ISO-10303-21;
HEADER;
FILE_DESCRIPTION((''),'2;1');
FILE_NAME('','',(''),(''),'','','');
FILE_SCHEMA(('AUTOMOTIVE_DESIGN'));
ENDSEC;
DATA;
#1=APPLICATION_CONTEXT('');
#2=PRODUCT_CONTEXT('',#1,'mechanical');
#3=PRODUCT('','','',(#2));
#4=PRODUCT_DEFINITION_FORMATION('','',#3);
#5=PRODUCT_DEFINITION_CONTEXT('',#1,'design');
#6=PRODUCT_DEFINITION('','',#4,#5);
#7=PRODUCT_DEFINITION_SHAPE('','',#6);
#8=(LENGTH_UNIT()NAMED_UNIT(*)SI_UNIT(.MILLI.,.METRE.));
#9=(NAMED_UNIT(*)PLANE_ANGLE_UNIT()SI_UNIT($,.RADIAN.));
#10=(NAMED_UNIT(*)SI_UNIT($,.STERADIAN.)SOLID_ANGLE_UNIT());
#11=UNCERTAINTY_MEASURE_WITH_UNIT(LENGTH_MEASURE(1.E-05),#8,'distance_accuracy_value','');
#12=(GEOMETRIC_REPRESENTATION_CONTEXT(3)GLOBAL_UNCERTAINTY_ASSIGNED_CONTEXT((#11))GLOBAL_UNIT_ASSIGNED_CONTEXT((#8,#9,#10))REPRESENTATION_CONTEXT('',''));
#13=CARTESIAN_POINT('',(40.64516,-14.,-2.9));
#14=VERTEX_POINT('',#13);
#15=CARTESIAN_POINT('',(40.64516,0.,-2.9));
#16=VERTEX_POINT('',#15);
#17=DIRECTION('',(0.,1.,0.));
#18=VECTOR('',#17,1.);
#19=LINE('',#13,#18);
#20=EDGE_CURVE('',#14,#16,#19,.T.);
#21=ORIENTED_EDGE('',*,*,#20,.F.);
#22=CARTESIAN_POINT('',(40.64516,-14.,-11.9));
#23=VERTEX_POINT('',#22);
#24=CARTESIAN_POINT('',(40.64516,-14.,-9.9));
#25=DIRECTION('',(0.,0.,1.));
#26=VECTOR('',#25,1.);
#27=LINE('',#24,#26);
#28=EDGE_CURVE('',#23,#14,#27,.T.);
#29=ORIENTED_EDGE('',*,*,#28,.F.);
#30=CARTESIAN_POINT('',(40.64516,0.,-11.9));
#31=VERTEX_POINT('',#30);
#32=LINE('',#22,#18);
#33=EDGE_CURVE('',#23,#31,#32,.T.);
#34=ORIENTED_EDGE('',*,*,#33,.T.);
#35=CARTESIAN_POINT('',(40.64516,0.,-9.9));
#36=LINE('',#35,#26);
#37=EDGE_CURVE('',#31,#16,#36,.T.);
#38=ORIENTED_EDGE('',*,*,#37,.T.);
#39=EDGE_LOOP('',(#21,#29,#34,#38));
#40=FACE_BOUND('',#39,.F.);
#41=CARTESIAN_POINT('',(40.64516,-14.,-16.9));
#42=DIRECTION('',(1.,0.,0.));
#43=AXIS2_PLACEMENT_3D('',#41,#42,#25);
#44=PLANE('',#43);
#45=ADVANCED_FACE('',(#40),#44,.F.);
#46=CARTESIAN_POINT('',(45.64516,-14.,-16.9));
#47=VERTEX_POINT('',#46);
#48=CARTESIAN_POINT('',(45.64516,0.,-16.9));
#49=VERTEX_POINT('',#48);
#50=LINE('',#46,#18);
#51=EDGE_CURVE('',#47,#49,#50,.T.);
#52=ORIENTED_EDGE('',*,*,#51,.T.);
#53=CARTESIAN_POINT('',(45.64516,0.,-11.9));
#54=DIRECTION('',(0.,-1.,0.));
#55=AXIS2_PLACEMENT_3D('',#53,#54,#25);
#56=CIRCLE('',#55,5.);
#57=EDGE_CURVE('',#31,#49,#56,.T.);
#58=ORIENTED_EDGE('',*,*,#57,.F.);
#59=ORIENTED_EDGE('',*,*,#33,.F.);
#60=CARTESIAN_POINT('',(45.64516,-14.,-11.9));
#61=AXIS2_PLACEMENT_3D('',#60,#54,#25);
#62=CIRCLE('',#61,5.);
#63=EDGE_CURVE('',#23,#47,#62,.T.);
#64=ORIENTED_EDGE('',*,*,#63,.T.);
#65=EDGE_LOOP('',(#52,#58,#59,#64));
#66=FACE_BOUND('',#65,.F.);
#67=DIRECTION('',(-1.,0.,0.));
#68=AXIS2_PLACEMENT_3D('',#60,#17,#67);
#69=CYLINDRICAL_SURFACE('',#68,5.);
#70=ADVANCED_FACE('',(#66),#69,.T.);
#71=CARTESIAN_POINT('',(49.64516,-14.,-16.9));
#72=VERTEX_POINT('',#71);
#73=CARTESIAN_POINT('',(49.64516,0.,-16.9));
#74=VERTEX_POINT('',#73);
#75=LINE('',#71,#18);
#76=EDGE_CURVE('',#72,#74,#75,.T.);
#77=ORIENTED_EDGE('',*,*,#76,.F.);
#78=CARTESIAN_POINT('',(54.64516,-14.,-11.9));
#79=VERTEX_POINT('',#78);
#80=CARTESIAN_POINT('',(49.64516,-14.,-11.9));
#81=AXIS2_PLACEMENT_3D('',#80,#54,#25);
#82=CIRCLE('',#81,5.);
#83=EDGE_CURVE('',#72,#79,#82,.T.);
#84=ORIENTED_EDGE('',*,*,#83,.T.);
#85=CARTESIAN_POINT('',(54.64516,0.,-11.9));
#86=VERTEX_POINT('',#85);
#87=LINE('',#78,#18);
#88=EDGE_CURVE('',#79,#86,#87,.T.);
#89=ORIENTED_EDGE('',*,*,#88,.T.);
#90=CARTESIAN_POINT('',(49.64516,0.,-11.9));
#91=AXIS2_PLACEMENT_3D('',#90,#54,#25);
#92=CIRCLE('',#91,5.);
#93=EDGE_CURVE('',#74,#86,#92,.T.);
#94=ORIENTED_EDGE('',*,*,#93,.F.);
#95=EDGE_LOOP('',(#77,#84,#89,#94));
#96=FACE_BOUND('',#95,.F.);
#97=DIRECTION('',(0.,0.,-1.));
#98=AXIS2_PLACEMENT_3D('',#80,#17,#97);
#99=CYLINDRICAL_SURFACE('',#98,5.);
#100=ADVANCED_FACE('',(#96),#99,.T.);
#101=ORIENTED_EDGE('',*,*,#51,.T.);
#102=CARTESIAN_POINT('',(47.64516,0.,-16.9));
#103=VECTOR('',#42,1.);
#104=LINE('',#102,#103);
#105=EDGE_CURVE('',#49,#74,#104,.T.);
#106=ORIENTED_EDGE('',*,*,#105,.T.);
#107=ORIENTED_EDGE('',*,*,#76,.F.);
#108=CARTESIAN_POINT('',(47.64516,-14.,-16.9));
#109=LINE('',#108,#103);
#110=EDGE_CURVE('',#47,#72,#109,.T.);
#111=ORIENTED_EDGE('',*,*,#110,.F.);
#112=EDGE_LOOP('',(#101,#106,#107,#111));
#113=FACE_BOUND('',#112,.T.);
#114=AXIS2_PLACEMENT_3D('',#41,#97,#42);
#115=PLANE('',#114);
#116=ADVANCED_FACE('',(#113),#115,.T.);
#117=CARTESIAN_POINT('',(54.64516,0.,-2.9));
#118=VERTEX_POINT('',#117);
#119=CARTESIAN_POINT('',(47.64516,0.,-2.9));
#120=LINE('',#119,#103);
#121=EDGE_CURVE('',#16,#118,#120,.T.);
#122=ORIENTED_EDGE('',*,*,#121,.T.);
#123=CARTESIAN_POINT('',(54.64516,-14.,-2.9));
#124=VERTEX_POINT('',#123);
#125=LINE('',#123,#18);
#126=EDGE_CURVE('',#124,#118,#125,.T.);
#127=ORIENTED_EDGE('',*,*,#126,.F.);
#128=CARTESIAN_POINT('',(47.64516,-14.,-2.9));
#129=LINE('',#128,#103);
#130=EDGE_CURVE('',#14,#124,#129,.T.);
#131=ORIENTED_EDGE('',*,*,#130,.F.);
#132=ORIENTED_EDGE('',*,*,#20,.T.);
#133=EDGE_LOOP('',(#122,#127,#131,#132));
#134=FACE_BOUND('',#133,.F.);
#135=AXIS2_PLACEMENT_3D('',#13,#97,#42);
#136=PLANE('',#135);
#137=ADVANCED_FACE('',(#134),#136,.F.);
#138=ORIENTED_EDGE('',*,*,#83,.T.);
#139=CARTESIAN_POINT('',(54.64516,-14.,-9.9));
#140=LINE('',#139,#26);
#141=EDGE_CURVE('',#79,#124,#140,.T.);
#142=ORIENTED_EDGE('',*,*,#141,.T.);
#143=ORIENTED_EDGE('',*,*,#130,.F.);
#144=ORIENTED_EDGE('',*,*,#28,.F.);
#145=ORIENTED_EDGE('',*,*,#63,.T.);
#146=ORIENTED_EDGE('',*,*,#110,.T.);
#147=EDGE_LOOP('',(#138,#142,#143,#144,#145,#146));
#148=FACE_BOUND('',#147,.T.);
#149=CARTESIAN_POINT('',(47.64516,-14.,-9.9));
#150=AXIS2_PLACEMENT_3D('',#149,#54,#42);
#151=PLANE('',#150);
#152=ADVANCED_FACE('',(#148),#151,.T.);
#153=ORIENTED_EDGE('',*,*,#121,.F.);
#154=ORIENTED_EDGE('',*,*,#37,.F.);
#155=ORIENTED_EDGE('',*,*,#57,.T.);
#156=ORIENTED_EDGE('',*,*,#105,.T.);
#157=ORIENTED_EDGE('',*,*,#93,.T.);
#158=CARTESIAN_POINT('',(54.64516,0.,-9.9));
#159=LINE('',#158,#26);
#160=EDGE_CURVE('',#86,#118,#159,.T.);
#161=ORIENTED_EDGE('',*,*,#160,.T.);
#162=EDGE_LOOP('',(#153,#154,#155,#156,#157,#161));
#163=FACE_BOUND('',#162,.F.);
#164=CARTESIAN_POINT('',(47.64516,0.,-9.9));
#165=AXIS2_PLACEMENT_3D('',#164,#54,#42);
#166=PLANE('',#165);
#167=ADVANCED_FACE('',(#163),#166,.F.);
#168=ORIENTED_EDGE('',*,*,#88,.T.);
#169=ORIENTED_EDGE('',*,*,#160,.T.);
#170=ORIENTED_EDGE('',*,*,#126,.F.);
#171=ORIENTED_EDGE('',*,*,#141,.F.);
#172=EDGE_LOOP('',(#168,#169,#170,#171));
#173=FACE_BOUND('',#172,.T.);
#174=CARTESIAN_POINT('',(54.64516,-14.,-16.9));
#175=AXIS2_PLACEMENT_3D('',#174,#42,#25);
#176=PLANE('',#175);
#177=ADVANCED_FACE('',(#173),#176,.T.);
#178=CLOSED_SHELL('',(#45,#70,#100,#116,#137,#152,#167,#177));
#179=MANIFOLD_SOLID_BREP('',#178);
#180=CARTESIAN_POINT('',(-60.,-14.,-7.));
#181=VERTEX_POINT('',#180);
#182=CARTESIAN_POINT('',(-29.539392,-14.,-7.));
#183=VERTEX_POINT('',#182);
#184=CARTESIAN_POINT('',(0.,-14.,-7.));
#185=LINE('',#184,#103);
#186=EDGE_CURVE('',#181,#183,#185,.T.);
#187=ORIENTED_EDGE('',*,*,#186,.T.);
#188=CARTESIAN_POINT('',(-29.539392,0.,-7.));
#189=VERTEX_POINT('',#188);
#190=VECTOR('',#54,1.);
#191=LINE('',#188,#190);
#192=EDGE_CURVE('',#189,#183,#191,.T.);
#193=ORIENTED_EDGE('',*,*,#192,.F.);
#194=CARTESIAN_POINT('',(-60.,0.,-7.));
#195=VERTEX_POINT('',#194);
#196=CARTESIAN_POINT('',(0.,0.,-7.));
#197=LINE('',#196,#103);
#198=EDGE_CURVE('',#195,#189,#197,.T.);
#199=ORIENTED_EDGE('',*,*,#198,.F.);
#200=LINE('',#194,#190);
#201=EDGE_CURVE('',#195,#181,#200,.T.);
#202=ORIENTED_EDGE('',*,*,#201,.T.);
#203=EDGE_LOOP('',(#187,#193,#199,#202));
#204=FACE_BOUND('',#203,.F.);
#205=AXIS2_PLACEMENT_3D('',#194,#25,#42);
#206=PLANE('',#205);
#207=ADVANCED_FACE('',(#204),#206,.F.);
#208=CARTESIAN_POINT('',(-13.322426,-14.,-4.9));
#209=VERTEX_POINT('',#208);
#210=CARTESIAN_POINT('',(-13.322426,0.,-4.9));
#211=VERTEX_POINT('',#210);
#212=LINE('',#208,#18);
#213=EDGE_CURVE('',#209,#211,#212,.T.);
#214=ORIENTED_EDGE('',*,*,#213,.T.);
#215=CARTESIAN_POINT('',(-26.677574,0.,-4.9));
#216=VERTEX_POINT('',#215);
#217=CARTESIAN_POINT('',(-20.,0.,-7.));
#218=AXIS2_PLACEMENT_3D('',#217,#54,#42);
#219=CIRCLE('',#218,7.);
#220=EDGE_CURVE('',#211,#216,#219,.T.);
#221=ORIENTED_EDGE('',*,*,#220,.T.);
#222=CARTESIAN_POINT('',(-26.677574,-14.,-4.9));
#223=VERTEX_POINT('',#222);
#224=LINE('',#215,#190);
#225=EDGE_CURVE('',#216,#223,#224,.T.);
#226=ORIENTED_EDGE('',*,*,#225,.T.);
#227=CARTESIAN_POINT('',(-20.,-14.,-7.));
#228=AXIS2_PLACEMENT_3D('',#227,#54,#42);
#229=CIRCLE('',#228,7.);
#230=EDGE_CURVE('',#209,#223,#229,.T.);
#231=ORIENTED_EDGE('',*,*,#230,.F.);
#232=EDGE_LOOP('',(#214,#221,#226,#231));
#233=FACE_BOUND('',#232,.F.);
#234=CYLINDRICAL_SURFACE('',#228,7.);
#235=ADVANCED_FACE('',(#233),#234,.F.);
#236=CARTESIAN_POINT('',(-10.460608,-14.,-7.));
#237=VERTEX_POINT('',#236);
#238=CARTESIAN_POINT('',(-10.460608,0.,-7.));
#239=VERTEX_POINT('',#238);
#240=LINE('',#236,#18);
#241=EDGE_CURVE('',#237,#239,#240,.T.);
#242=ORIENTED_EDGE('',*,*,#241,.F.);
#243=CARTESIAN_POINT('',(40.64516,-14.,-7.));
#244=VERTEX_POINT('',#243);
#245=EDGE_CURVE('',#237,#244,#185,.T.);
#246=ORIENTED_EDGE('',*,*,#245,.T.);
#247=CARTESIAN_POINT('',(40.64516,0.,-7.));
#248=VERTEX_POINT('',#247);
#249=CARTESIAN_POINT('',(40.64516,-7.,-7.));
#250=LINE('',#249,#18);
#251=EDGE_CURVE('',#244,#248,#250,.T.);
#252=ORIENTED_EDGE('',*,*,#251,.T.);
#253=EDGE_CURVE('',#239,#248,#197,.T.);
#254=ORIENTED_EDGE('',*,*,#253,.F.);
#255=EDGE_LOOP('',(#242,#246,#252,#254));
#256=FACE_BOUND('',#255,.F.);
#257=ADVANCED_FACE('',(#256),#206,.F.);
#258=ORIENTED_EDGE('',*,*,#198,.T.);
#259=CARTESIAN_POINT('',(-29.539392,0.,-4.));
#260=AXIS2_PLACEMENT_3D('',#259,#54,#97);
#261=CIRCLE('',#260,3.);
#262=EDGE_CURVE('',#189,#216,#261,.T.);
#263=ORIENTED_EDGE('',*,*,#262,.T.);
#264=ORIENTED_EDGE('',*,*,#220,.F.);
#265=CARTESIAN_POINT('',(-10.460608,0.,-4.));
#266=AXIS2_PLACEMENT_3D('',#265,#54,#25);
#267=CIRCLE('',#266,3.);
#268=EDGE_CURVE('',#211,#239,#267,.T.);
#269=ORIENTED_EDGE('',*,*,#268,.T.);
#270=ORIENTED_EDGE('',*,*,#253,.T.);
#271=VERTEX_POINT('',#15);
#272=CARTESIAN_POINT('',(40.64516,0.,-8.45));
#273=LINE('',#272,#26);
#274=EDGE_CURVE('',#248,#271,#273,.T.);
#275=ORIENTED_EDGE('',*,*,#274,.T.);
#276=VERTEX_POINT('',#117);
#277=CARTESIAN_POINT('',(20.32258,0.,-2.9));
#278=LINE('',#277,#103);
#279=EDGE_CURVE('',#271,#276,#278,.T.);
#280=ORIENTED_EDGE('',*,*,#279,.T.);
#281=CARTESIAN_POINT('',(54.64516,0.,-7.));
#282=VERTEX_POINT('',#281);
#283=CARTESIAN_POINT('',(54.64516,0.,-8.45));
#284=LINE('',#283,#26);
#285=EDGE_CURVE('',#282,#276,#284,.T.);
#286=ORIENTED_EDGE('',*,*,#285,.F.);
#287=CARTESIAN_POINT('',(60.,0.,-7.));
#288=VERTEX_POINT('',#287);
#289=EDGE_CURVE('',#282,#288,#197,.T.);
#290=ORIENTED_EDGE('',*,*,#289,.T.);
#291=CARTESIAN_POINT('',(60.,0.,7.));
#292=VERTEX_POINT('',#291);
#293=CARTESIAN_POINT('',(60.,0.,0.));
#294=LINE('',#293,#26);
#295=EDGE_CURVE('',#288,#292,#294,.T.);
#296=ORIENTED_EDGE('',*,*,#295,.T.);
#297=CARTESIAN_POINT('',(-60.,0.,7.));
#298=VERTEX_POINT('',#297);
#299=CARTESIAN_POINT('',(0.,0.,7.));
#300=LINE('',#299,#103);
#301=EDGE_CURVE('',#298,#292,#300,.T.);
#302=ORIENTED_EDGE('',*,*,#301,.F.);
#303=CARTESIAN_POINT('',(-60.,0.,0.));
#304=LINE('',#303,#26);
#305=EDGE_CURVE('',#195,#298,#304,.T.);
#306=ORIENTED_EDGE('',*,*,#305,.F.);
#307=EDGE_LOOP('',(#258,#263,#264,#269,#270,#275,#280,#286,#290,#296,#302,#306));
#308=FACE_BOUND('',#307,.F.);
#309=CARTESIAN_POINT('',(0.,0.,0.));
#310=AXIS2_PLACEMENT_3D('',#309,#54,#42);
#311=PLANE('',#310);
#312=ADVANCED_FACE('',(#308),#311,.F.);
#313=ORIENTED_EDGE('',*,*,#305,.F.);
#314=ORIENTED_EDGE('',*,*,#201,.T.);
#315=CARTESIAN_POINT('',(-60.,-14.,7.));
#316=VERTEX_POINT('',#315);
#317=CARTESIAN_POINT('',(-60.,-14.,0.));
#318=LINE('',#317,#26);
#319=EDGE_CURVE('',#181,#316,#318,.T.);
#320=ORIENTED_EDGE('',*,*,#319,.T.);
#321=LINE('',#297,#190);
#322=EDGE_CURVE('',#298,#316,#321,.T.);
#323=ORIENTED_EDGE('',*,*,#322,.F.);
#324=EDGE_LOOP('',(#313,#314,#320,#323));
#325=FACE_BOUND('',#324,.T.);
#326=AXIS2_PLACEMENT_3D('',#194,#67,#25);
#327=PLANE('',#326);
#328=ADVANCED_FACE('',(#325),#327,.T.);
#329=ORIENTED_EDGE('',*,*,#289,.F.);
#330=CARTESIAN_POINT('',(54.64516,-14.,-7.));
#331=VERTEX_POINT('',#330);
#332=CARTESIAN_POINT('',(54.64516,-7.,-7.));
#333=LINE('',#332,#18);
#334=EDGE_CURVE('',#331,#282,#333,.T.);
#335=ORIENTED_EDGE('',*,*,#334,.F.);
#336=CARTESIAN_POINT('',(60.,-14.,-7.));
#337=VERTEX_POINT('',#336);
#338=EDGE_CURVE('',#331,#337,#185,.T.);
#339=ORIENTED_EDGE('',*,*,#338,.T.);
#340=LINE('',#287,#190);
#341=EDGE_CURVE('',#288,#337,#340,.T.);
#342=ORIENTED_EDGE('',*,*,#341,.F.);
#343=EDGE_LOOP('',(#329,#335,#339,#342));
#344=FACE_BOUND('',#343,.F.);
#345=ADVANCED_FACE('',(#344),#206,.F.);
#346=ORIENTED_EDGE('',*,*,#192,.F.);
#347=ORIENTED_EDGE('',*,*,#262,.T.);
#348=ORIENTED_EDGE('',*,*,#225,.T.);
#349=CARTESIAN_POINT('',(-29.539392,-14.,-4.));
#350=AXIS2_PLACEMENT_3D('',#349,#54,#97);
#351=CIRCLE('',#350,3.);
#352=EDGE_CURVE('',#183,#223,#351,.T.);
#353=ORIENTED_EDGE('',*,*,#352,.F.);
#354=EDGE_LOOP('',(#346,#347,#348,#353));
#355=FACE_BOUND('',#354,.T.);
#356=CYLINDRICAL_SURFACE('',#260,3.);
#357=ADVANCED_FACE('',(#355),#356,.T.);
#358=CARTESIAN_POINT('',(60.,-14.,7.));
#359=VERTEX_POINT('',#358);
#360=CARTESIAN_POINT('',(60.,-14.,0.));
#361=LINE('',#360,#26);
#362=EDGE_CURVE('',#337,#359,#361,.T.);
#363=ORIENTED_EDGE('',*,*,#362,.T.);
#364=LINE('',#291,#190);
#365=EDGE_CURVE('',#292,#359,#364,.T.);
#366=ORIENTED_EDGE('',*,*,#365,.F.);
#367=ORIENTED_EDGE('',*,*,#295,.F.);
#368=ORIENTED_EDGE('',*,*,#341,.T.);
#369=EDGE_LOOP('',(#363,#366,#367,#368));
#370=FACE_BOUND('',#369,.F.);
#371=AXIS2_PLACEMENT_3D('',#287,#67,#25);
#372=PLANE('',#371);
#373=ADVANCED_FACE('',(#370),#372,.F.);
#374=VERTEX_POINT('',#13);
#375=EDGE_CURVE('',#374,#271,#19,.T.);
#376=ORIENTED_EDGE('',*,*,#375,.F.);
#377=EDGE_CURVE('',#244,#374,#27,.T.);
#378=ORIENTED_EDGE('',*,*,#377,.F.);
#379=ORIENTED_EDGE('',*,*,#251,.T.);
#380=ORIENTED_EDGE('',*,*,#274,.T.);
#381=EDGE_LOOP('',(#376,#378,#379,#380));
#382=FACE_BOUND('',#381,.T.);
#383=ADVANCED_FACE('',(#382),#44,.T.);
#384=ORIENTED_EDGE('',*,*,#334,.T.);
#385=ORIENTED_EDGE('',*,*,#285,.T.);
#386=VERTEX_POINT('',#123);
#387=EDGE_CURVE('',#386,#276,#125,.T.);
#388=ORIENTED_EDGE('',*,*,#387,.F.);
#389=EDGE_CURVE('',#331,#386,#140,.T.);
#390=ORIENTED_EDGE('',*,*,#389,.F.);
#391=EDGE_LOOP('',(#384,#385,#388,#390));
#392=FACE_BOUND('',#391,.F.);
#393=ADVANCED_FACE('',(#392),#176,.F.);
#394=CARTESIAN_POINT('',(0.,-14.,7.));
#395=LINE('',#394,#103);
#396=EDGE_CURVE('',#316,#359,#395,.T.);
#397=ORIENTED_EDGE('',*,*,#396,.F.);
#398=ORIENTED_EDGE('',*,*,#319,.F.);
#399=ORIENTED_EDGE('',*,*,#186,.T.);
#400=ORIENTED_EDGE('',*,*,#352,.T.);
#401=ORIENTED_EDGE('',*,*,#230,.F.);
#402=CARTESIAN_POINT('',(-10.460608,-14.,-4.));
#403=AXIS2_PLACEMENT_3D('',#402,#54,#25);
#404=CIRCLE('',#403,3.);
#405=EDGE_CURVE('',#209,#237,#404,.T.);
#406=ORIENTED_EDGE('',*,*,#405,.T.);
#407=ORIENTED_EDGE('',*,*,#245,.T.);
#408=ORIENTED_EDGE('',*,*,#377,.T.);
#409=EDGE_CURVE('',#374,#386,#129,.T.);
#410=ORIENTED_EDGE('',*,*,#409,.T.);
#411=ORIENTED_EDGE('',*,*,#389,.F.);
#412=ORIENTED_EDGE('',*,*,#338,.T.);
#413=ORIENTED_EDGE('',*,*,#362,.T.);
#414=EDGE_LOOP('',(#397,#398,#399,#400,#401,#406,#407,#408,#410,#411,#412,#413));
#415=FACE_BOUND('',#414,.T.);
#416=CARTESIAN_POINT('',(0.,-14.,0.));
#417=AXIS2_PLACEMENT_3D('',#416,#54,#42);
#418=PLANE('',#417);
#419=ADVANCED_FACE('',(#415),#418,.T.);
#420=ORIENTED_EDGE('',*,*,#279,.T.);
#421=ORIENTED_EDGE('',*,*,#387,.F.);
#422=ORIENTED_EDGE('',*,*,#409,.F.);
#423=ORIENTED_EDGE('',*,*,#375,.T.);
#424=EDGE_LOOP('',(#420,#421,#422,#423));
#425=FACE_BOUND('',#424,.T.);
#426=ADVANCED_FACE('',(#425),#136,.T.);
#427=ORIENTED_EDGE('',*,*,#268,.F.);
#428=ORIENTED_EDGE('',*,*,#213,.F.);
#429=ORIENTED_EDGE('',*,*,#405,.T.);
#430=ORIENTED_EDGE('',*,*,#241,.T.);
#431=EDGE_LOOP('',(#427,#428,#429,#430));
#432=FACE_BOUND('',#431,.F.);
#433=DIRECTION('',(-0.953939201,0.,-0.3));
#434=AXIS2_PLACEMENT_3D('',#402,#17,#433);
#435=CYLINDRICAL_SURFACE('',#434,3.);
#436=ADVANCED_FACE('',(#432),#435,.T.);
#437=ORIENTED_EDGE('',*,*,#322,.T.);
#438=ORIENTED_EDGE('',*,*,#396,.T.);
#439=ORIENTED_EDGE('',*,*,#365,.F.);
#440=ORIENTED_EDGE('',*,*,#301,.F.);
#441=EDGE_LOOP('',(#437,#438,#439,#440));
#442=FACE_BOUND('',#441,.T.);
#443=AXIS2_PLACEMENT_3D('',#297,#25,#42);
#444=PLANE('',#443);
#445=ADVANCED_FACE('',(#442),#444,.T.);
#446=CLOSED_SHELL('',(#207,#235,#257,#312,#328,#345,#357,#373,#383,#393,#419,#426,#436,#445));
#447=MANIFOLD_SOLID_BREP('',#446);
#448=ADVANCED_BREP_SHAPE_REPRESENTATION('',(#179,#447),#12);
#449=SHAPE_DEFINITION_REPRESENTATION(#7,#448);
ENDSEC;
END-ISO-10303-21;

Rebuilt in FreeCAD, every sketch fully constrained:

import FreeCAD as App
import Part
import Sketcher


def edges_at(feature, points):
    """Names of the edges that pass closest to the given points."""
    edges = feature.Shape.Edges
    near = lambda p: min(range(len(edges)), key=lambda i: edges[i].distToShape(Part.Vertex(*p))[0])
    return sorted({f"Edge{near(p) + 1}" for p in points})

doc = App.newDocument("Part")
body = doc.addObject("PartDesign::Body", "Body")

# Sketch on XZ plane
sketch1 = body.newObject("Sketcher::SketchObject", "Sketch")
sketch1.AttachmentSupport = (doc.getObject("XZ_Plane"), [""])
sketch1.MapMode = "FlatFace"
sketch1.addGeometry([
    Part.LineSegment(App.Vector(-60, 7, 0), App.Vector(-60, -7, 0)),
    Part.LineSegment(App.Vector(-60, -7, 0), App.Vector(60, -7, 0)),
    Part.LineSegment(App.Vector(60, -7, 0), App.Vector(60, 7, 0)),
    Part.LineSegment(App.Vector(60, 7, 0), App.Vector(-60, 7, 0)),
], False)
sketch1.addConstraint([
    Sketcher.Constraint("Coincident", 0, 2, 1, 1),
    Sketcher.Constraint("Coincident", 1, 2, 2, 1),
    Sketcher.Constraint("Coincident", 2, 2, 3, 1),
    Sketcher.Constraint("Coincident", 3, 2, 0, 1),
    Sketcher.Constraint("Vertical", 0),
    Sketcher.Constraint("Horizontal", 1),
    Sketcher.Constraint("Vertical", 2),
    Sketcher.Constraint("Horizontal", 3),
    Sketcher.Constraint("Symmetric", 0, 2, 2, 2, -1, 1),
    Sketcher.Constraint("DistanceX", 1, 1, 1, 2, 120.0),
    Sketcher.Constraint("DistanceY", 0, 2, 0, 1, 14.0),
])
pad1 = body.newObject("PartDesign::Pad", "Pad")
pad1.Profile = sketch1
pad1.Length = 14

# Sketch on XZ plane
sketch2 = body.newObject("Sketcher::SketchObject", "Sketch001")
sketch2.AttachmentSupport = (doc.getObject("XZ_Plane"), [""])
sketch2.MapMode = "FlatFace"
sketch2.AttachmentOffset = App.Placement(App.Vector(0, 0, 14), App.Rotation())
sketch2.addGeometry(Part.Circle(App.Vector(-20, -7, 0), App.Vector(0, 0, 1), 7), False)
sketch2.addConstraint([
    Sketcher.Constraint("Diameter", 0, 14.0),
    Sketcher.Constraint("DistanceX", 0, 3, -1, 1, 20.0),
    Sketcher.Constraint("DistanceY", 0, 3, -1, 1, 7.0),
])
pocket1 = body.newObject("PartDesign::Pocket", "Pocket")
pocket1.Profile = sketch2
pocket1.Type = "ThroughAll"
doc.recompute()

fillet = body.newObject("PartDesign::Fillet", "Fillet")
fillet.Base = (pocket1, edges_at(pocket1, [(-27, -7, -7), (-13, -7, -7)]))
fillet.Radius = 3

# Sketch on XZ plane
sketch3 = body.newObject("Sketcher::SketchObject", "Sketch002")
sketch3.AttachmentSupport = (doc.getObject("XZ_Plane"), [""])
sketch3.MapMode = "FlatFace"
sketch3.AttachmentOffset = App.Placement(App.Vector(0, 0, 14), App.Rotation())
sketch3.addGeometry([
    Part.LineSegment(App.Vector(41, -3, 0), App.Vector(41, -17, 0)),
    Part.LineSegment(App.Vector(41, -17, 0), App.Vector(55, -17, 0)),
    Part.LineSegment(App.Vector(55, -17, 0), App.Vector(55, -3, 0)),
    Part.LineSegment(App.Vector(55, -3, 0), App.Vector(41, -3, 0)),
], False)
sketch3.addConstraint([
    Sketcher.Constraint("Coincident", 0, 2, 1, 1),
    Sketcher.Constraint("Coincident", 1, 2, 2, 1),
    Sketcher.Constraint("Coincident", 2, 2, 3, 1),
    Sketcher.Constraint("Coincident", 3, 2, 0, 1),
    Sketcher.Constraint("Vertical", 0),
    Sketcher.Constraint("Horizontal", 1),
    Sketcher.Constraint("Vertical", 2),
    Sketcher.Constraint("Horizontal", 3),
    Sketcher.Constraint("Equal", 3, 0),
    Sketcher.Constraint("DistanceX", 1, 1, 1, 2, 14.0),
    Sketcher.Constraint("DistanceY", 0, 2, -1, 1, 16.9),
    Sketcher.Constraint("DistanceX", -1, 1, 0, 2, 40.64516),
])
pocket2 = body.newObject("PartDesign::Pocket", "Pocket001")
pocket2.Profile = sketch3
pocket2.Type = "ThroughAll"
body2 = doc.addObject("PartDesign::Body", "Body001")

# Sketch on XZ plane
sketch4 = body2.newObject("Sketcher::SketchObject", "Sketch003")
sketch4.AttachmentSupport = (doc.getObject("XZ_Plane001"), [""])
sketch4.MapMode = "FlatFace"
sketch4.AttachmentOffset = App.Placement(App.Vector(0, 0, 14), App.Rotation())
sketch4.addGeometry([
    Part.LineSegment(App.Vector(41, -3, 0), App.Vector(41, -17, 0)),
    Part.LineSegment(App.Vector(41, -17, 0), App.Vector(55, -17, 0)),
    Part.LineSegment(App.Vector(55, -17, 0), App.Vector(55, -3, 0)),
    Part.LineSegment(App.Vector(55, -3, 0), App.Vector(41, -3, 0)),
], False)
sketch4.addConstraint([
    Sketcher.Constraint("Coincident", 0, 2, 1, 1),
    Sketcher.Constraint("Coincident", 1, 2, 2, 1),
    Sketcher.Constraint("Coincident", 2, 2, 3, 1),
    Sketcher.Constraint("Coincident", 3, 2, 0, 1),
    Sketcher.Constraint("Vertical", 0),
    Sketcher.Constraint("Horizontal", 1),
    Sketcher.Constraint("Vertical", 2),
    Sketcher.Constraint("Horizontal", 3),
    Sketcher.Constraint("Equal", 3, 0),
    Sketcher.Constraint("DistanceX", 1, 1, 1, 2, 14.0),
    Sketcher.Constraint("DistanceY", 0, 2, -1, 1, 16.9),
    Sketcher.Constraint("DistanceX", -1, 1, 0, 2, 40.64516),
])
pad2 = body2.newObject("PartDesign::Pad", "Pad001")
pad2.Profile = sketch4
pad2.Length = 14
pad2.Reversed = True
doc.recompute()

fillet2 = body2.newObject("PartDesign::Fillet", "Fillet001")
fillet2.Base = (pad2, edges_at(pad2, [(54.645, -7, -16.9), (40.645, -7, -16.9)]))
fillet2.Radius = 5

doc.recompute()
